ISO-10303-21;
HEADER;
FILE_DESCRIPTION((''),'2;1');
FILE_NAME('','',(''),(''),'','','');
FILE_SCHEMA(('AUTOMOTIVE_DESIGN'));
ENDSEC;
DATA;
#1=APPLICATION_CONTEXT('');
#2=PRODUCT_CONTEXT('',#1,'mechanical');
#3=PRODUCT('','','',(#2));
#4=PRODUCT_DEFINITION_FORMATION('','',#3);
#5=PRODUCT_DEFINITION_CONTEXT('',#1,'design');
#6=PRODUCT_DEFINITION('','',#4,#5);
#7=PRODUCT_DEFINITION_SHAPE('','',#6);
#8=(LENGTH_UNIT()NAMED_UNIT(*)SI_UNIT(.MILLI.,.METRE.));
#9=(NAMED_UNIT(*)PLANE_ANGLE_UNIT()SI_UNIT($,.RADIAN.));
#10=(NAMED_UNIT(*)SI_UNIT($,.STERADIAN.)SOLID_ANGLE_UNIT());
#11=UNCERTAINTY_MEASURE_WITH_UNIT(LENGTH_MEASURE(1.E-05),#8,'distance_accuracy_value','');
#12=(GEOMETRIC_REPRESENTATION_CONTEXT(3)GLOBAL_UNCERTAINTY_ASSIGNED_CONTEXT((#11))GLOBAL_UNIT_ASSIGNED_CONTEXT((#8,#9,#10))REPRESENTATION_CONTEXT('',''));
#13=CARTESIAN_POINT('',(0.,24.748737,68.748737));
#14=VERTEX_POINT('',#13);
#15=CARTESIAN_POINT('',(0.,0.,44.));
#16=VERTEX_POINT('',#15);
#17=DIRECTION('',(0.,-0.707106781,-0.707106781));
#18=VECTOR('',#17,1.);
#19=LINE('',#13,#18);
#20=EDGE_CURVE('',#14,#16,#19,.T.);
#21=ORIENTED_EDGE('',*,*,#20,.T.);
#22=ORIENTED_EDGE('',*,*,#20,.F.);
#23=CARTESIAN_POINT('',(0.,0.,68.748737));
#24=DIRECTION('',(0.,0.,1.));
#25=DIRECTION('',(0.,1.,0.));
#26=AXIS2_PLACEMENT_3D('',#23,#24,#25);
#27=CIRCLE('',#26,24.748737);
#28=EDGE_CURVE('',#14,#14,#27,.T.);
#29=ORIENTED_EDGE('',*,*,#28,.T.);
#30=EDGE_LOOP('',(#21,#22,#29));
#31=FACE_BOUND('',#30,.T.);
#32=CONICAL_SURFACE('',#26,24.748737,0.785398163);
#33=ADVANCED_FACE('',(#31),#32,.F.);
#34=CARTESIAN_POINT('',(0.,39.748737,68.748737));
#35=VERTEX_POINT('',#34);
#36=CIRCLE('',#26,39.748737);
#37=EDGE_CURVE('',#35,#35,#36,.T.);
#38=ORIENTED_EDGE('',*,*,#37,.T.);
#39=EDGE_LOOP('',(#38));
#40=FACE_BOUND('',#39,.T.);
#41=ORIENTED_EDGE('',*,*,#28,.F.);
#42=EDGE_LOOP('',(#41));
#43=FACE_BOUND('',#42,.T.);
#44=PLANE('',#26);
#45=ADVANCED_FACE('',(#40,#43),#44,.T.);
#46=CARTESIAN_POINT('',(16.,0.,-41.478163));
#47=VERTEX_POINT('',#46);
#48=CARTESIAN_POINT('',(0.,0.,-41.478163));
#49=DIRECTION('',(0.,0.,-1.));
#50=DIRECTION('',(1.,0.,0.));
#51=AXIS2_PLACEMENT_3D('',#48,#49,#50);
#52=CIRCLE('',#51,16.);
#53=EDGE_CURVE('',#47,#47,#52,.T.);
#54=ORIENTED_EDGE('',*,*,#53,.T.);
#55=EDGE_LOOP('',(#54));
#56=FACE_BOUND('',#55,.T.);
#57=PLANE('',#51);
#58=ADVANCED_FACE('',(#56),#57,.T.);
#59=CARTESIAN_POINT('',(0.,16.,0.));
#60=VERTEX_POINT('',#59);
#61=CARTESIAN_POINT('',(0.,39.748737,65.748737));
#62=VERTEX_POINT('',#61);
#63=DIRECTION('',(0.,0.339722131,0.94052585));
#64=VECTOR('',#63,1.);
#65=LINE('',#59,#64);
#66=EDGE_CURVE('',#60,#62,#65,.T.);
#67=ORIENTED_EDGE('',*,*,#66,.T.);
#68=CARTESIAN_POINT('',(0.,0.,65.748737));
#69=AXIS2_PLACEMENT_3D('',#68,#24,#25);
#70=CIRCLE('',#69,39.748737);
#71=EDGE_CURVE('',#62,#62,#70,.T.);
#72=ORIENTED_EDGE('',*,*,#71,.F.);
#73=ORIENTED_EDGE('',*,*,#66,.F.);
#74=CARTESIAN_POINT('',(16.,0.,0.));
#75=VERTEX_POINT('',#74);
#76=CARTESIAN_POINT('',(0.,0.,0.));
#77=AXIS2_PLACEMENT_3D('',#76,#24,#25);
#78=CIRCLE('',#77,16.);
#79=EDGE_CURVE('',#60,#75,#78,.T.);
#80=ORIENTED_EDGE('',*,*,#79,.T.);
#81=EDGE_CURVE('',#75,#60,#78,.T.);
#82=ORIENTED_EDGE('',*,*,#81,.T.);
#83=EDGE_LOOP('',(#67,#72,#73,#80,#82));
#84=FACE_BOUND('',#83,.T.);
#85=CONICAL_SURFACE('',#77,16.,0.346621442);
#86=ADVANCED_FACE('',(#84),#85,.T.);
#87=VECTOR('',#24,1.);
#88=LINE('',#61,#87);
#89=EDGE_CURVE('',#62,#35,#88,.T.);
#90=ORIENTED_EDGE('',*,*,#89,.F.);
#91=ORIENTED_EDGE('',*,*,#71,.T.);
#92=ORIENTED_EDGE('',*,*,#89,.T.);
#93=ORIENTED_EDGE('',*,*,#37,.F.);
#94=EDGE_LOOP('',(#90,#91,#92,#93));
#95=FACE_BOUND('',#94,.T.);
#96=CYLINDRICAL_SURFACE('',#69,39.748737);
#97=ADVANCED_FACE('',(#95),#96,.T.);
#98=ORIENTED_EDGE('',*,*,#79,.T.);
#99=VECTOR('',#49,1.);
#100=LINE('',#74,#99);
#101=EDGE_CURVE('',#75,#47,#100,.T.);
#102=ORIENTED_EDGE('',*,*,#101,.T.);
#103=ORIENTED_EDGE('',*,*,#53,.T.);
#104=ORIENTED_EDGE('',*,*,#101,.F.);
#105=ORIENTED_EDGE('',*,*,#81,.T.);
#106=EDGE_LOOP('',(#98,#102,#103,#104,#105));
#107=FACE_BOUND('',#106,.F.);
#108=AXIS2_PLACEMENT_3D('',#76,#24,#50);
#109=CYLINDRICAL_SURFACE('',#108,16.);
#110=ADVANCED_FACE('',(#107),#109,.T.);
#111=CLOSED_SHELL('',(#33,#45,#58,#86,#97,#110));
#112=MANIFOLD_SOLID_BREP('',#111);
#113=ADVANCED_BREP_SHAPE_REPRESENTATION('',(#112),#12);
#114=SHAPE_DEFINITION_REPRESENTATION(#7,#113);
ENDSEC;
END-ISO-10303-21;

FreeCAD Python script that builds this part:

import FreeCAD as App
import Part
import Sketcher
Q = App.Units.Quantity


def add_polygon(sketch, points):
    """Adds a closed chain of lines whose ends are joined by coincident constraints."""
    first, n = sketch.GeometryCount, len(points)
    for a, b in zip(points, points[1:] + points[:1]):
        sketch.addGeometry(Part.LineSegment(App.Vector(*a, 0), App.Vector(*b, 0)), False)
    for i in range(n):
        sketch.addConstraint(Sketcher.Constraint("Coincident", first + i, 2, first + (i + 1) % n, 1))

doc = App.newDocument("Part")
body = doc.addObject("PartDesign::Body", "Body")

sketch1 = body.newObject("Sketcher::SketchObject", "Sketch")
sketch1.AttachmentSupport = (doc.getObject("YZ_Plane"), [""])
sketch1.MapMode = "FlatFace"
add_polygon(sketch1, [(0, 44), (0, 0), (16, 0), (39.7, 65.7), (39.7, 68.7), (24.7, 68.7)])
sketch1.addConstraint([
    Sketcher.Constraint("Vertical", 0),
    Sketcher.Constraint("Horizontal", 1),
    Sketcher.Constraint("Vertical", 3),
    Sketcher.Constraint("Horizontal", 4),
    Sketcher.Constraint("Coincident", 0, 2, -1, 1),
    Sketcher.Constraint("DistanceX", 1, 1, 1, 2, Q("16 mm")),
    Sketcher.Constraint("DistanceX", 4, 2, 4, 1, Q("15 mm")),
    Sketcher.Constraint("DistanceY", 0, 2, 0, 1, Q("44 mm")),
    Sketcher.Constraint("DistanceY", 3, 1, 3, 2, Q("3 mm")),
    Sketcher.Constraint("Angle", 5, Q("-135 deg")),
    Sketcher.Constraint("Distance", 5, Q("35 mm")),
])
revolution = body.newObject("PartDesign::Revolution", "Revolution")
revolution.Profile = sketch1
revolution.ReferenceAxis = (sketch1, ["V_Axis"])
revolution.Angle = 360

sketch2 = body.newObject("Sketcher::SketchObject", "Sketch001")
sketch2.AttachmentSupport = (doc.getObject("XY_Plane"), [""])
sketch2.MapMode = "FlatFace"
sketch2.addGeometry(Part.Circle(App.Vector(0, 0, 0), App.Vector(0, 0, 1), 16), False)
sketch2.addConstraint([
    Sketcher.Constraint("Coincident", 0, 3, -1, 1),
    Sketcher.Constraint("Diameter", 0, Q("32 mm")),
])
pad1 = body.newObject("PartDesign::Pad", "Pad")
pad1.Profile = sketch2
pad1.Length = 41.478163
pad1.Reversed = True

doc.recompute()
